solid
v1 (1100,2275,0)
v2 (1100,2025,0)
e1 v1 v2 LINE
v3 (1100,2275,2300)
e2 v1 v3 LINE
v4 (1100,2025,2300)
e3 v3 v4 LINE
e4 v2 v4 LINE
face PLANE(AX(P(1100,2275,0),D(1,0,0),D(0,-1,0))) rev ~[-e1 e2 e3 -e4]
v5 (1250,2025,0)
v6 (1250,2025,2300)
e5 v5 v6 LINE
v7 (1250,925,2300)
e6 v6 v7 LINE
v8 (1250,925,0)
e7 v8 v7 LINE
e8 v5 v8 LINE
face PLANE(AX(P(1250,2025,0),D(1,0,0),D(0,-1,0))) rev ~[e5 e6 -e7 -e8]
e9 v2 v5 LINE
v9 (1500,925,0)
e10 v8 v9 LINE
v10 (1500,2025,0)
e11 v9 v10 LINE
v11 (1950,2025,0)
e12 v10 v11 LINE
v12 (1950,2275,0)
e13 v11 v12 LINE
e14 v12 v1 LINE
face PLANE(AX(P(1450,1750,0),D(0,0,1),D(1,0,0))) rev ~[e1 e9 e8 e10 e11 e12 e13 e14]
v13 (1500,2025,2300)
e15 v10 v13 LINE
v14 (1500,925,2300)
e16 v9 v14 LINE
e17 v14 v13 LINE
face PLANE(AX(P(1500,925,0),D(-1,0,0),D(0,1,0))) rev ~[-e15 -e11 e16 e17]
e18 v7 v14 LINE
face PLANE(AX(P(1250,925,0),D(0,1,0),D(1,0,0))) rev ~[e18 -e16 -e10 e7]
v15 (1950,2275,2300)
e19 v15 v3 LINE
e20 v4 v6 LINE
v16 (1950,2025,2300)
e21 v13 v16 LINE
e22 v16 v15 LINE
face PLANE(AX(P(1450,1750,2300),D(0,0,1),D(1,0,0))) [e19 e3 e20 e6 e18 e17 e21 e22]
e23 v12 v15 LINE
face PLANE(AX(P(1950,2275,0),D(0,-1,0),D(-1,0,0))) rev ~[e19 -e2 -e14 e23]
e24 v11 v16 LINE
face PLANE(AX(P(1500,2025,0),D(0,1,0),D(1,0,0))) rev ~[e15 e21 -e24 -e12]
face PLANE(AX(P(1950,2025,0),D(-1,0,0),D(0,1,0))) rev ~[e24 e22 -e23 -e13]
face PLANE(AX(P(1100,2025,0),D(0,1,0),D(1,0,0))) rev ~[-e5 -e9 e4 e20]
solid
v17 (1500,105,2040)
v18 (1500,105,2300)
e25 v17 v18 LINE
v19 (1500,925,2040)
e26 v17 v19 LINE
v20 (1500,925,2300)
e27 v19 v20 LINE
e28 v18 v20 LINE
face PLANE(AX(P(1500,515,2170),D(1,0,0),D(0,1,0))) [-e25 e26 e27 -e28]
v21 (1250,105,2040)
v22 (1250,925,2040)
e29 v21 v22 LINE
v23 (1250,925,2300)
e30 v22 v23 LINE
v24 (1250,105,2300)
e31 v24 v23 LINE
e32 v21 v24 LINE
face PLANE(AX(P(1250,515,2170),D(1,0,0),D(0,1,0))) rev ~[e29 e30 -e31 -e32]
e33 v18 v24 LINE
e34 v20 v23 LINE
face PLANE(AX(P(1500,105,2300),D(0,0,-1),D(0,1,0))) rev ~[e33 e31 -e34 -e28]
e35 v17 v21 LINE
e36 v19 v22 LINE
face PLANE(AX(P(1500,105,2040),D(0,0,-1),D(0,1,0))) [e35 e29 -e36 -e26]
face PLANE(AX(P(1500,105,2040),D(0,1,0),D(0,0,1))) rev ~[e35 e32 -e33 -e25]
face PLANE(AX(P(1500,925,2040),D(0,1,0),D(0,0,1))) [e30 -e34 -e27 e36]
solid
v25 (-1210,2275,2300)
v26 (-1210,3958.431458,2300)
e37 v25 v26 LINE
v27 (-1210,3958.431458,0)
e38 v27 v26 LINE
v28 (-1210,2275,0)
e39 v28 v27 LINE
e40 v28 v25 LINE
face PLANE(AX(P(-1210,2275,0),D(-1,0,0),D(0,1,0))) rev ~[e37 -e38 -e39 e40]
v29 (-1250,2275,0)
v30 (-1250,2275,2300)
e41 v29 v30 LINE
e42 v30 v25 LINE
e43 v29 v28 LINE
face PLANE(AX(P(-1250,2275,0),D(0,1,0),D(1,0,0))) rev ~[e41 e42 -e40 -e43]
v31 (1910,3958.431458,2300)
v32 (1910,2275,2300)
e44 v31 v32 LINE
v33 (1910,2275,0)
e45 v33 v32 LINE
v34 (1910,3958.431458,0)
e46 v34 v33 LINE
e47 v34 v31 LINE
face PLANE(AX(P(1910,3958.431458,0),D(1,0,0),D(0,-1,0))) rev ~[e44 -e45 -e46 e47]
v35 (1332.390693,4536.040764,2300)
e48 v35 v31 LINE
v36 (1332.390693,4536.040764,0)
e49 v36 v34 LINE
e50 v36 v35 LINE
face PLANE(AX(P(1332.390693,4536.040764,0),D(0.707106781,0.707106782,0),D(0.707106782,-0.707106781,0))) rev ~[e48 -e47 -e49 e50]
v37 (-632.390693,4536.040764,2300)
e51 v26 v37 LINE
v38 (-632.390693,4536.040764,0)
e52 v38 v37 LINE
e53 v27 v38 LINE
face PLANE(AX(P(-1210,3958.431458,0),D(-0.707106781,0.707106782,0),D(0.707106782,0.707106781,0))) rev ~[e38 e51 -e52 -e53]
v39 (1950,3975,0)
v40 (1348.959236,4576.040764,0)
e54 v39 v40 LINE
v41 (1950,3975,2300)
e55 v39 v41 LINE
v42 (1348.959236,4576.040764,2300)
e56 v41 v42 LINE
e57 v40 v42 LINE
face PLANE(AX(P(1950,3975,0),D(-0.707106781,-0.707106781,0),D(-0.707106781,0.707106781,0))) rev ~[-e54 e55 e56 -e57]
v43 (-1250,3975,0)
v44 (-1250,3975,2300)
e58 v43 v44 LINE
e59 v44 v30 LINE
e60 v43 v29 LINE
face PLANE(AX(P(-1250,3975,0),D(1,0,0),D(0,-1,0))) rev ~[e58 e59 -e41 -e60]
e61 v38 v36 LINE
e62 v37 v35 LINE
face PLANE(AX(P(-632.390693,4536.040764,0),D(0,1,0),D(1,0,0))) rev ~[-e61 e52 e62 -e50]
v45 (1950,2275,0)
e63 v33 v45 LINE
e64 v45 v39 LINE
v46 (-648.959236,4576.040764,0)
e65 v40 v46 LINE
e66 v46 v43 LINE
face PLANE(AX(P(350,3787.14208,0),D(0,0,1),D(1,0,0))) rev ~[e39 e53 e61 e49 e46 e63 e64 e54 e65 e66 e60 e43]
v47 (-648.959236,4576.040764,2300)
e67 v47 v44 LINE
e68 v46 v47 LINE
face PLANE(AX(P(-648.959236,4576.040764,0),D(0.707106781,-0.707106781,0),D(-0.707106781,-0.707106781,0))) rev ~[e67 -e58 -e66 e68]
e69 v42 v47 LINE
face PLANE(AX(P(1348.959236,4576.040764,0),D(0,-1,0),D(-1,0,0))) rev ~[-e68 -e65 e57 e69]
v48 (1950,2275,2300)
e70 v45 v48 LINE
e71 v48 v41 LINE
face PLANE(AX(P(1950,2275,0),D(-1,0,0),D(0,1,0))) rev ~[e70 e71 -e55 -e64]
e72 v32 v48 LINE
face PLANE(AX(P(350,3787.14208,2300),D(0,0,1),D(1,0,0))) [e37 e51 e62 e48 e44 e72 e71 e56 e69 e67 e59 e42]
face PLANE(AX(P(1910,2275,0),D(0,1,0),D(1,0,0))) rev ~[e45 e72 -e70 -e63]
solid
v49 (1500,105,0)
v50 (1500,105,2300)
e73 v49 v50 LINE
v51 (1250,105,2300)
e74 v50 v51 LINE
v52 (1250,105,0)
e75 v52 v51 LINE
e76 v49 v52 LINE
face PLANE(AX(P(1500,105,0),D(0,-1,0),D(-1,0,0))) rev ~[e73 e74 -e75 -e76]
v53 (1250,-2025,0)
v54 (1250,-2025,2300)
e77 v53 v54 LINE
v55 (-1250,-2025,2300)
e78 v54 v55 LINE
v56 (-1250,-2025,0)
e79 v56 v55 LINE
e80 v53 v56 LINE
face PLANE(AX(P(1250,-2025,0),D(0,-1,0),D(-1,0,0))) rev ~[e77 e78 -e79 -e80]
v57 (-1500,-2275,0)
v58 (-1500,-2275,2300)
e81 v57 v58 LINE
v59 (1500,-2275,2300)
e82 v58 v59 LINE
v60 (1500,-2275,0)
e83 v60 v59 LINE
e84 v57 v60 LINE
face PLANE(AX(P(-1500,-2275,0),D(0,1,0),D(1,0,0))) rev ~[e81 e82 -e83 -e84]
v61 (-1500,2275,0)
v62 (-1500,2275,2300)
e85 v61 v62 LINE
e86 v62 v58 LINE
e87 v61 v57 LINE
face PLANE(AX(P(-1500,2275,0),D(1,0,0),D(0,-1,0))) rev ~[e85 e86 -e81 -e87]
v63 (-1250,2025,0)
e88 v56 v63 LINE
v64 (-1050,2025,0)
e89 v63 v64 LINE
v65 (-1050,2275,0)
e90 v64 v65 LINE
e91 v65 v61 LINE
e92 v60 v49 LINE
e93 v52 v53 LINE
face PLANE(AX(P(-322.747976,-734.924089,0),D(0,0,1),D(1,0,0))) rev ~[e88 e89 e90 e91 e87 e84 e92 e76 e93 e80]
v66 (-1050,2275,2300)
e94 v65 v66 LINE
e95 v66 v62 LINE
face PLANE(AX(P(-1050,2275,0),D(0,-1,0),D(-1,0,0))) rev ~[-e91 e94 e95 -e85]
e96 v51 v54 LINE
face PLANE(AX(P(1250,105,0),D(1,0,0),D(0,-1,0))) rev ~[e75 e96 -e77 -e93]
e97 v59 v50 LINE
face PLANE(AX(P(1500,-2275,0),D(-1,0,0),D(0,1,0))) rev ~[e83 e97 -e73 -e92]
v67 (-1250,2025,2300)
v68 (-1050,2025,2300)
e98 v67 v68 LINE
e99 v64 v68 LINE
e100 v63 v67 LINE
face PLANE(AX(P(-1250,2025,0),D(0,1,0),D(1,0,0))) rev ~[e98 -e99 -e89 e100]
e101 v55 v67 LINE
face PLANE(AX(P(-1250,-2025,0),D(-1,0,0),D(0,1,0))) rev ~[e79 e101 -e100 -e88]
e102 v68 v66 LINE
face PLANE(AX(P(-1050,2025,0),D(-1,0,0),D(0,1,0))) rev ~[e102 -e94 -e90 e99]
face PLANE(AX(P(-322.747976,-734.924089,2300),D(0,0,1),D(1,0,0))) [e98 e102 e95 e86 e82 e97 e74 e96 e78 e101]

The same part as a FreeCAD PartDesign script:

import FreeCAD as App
import Part
import Sketcher
from FreeCAD import Vector
Q = App.Units.Quantity

doc = App.newDocument("Part")
body = doc.addObject("PartDesign::Body", "Body")
body.AllowCompound = True

# Sketch on XY plane
sketch1 = doc.addObject("Sketcher::SketchObject", "Sketch")
body.addObject(sketch1)
sketch1.AttachmentSupport = (doc.XY_Plane, [""])
sketch1.MapMode = "FlatFace"
sketch1.addGeometry([
    Part.LineSegment(Vector(-1250, -2025, 0), Vector(-1250, 2025, 0)),  # 0
    Part.LineSegment(Vector(-1250, 2025, 0), Vector(-1050, 2025, 0)),  # 1
    Part.LineSegment(Vector(-1050, 2025, 0), Vector(-1050, 2275, 0)),  # 2
    Part.LineSegment(Vector(-1050, 2275, 0), Vector(-1500, 2275, 0)),  # 3
    Part.LineSegment(Vector(-1500, 2275, 0), Vector(-1500, -2275, 0)),  # 4
    Part.LineSegment(Vector(-1500, -2275, 0), Vector(1500, -2275, 0)),  # 5
    Part.LineSegment(Vector(1500, -2275, 0), Vector(1500, 105, 0)),  # 6
    Part.LineSegment(Vector(1500, 105, 0), Vector(1250, 105, 0)),  # 7
    Part.LineSegment(Vector(1250, 105, 0), Vector(1250, -2025, 0)),  # 8
    Part.LineSegment(Vector(1250, -2025, 0), Vector(-1250, -2025, 0)),  # 9
    Part.LineSegment(Vector(1100, 2275, 0), Vector(1100, 2025, 0)),  # 10
    Part.LineSegment(Vector(1100, 2025, 0), Vector(1250, 2025, 0)),  # 11
    Part.LineSegment(Vector(1250, 2025, 0), Vector(1250, 925, 0)),  # 12
    Part.LineSegment(Vector(1250, 925, 0), Vector(1500, 925, 0)),  # 13
    Part.LineSegment(Vector(1500, 925, 0), Vector(1500, 2025, 0)),  # 14
    Part.LineSegment(Vector(1500, 2025, 0), Vector(1950, 2025, 0)),  # 15
    Part.LineSegment(Vector(1950, 2025, 0), Vector(1950, 2275, 0)),  # 16
    Part.LineSegment(Vector(1950, 2275, 0), Vector(1100, 2275, 0)),  # 17
], False)
sketch1.addConstraint([
    Sketcher.Constraint("Coincident", 0, 2, 1, 1),
    Sketcher.Constraint("Coincident", 1, 2, 2, 1),
    Sketcher.Constraint("Coincident", 2, 2, 3, 1),
    Sketcher.Constraint("Coincident", 3, 2, 4, 1),
    Sketcher.Constraint("Coincident", 4, 2, 5, 1),
    Sketcher.Constraint("Coincident", 5, 2, 6, 1),
    Sketcher.Constraint("Coincident", 6, 2, 7, 1),
    Sketcher.Constraint("Coincident", 7, 2, 8, 1),
    Sketcher.Constraint("Coincident", 8, 2, 9, 1),
    Sketcher.Constraint("Coincident", 9, 2, 0, 1),
    Sketcher.Constraint("Coincident", 10, 2, 11, 1),
    Sketcher.Constraint("Coincident", 11, 2, 12, 1),
    Sketcher.Constraint("Coincident", 12, 2, 13, 1),
    Sketcher.Constraint("Coincident", 13, 2, 14, 1),
    Sketcher.Constraint("Coincident", 14, 2, 15, 1),
    Sketcher.Constraint("Coincident", 15, 2, 16, 1),
    Sketcher.Constraint("Coincident", 16, 2, 17, 1),
    Sketcher.Constraint("Coincident", 17, 2, 10, 1),
    Sketcher.Constraint("Vertical", 0),
    Sketcher.Constraint("Horizontal", 1),
    Sketcher.Constraint("Vertical", 2),
    Sketcher.Constraint("Horizontal", 3),
    Sketcher.Constraint("Vertical", 4),
    Sketcher.Constraint("Horizontal", 5),
    Sketcher.Constraint("Vertical", 6),
    Sketcher.Constraint("Horizontal", 7),
    Sketcher.Constraint("Vertical", 8),
    Sketcher.Constraint("Horizontal", 9),
    Sketcher.Constraint("Vertical", 10),
    Sketcher.Constraint("Horizontal", 11),
    Sketcher.Constraint("Vertical", 12),
    Sketcher.Constraint("Horizontal", 13),
    Sketcher.Constraint("Vertical", 14),
    Sketcher.Constraint("Horizontal", 15),
    Sketcher.Constraint("Vertical", 16),
    Sketcher.Constraint("Horizontal", 17),
    Sketcher.Constraint("Symmetric", 3, 2, 5, 2, -1, 1),
    Sketcher.Constraint("Symmetric", 0, 2, 8, 2, -1, 1),
    Sketcher.Constraint("Symmetric", 9, 2, 11, 2, -1, 1),
    Sketcher.Constraint("Horizontal", 11, 2, 14, 2),
    Sketcher.Constraint("Horizontal", 3, 2, 16, 2),
    Sketcher.Constraint("Vertical", 6, 2, 13, 2),
    Sketcher.Constraint("Equal", 3, 15),
    Sketcher.Constraint("Equal", 13, 2),
    Sketcher.Constraint("DistanceX", 1, 1, 1, 2, Q("200 mm")),
    Sketcher.Constraint("DistanceX", 3, 2, 3, 1, Q("450 mm")),
    Sketcher.Constraint("DistanceX", 5, 1, 5, 2, Q("3000 mm")),
    Sketcher.Constraint("DistanceX", 11, 1, 11, 2, Q("150 mm")),
    Sketcher.Constraint("DistanceY", 0, 1, 0, 2, Q("4050 mm")),
    Sketcher.Constraint("DistanceY", 6, 1, 6, 2, Q("2380 mm")),
    Sketcher.Constraint("DistanceY", 12, 2, 12, 1, Q("1100 mm")),
])
pad1 = doc.addObject("PartDesign::Pad", "Pad")
body.addObject(pad1)
pad1.Profile = sketch1
pad1.Length = 2300
body2 = doc.addObject("PartDesign::Body", "Body001")

# Sketch on YZ plane
sketch2 = doc.addObject("Sketcher::SketchObject", "Sketch001")
body2.addObject(sketch2)
sketch2.AttachmentSupport = (doc.getObject("YZ_Plane001"), [""])
sketch2.MapMode = "FlatFace"
sketch2.AttachmentOffset = App.Placement(Vector(0, 0, 1500), App.Rotation())
sketch2.addGeometry([
    Part.LineSegment(Vector(105, 2300, 0), Vector(105, 2040, 0)),
    Part.LineSegment(Vector(105, 2040, 0), Vector(925, 2040, 0)),
    Part.LineSegment(Vector(925, 2040, 0), Vector(925, 2300, 0)),
    Part.LineSegment(Vector(925, 2300, 0), Vector(105, 2300, 0)),
], False)
sketch2.addConstraint([
    Sketcher.Constraint("Coincident", 0, 2, 1, 1),
    Sketcher.Constraint("Coincident", 1, 2, 2, 1),
    Sketcher.Constraint("Coincident", 2, 2, 3, 1),
    Sketcher.Constraint("Coincident", 3, 2, 0, 1),
    Sketcher.Constraint("Vertical", 0),
    Sketcher.Constraint("Horizontal", 1),
    Sketcher.Constraint("Vertical", 2),
    Sketcher.Constraint("Horizontal", 3),
    Sketcher.Constraint("DistanceX", 1, 1, 1, 2, Q("820 mm")),
    Sketcher.Constraint("DistanceY", 0, 2, 0, 1, Q("260 mm")),
    Sketcher.Constraint("DistanceX", -1, 1, 0, 2, Q("105 mm")),
    Sketcher.Constraint("DistanceY", -1, 1, 0, 2, Q("2040 mm")),
])
pad2 = doc.addObject("PartDesign::Pad", "Pad001")
body2.addObject(pad2)
pad2.Profile = sketch2
pad2.Length = 250
pad2.Reversed = True
body3 = doc.addObject("PartDesign::Body", "Body002")

# Sketch on XY plane
sketch3 = doc.addObject("Sketcher::SketchObject", "Sketch002")
body3.addObject(sketch3)
sketch3.AttachmentSupport = (doc.getObject("XY_Plane002"), [""])
sketch3.MapMode = "FlatFace"
sketch3.addGeometry([
    Part.LineSegment(Vector(-1250, 2275, 0), Vector(-1210, 2275, 0)),  # 0
    Part.LineSegment(Vector(-1210, 2275, 0), Vector(-1210, 3958, 0)),  # 1
    Part.LineSegment(Vector(-1210, 3958, 0), Vector(-632, 4536, 0)),  # 2
    Part.LineSegment(Vector(-632, 4536, 0), Vector(1332, 4536, 0)),  # 3
    Part.LineSegment(Vector(1332, 4536, 0), Vector(1910, 3958, 0)),  # 4
    Part.LineSegment(Vector(1910, 3958, 0), Vector(1910, 2275, 0)),  # 5
    Part.LineSegment(Vector(1910, 2275, 0), Vector(1950, 2275, 0)),  # 6
    Part.LineSegment(Vector(1950, 2275, 0), Vector(1950, 3975, 0)),  # 7
    Part.LineSegment(Vector(1950, 3975, 0), Vector(1349, 4576, 0)),  # 8
    Part.LineSegment(Vector(1349, 4576, 0), Vector(-649, 4576, 0)),  # 9
    Part.LineSegment(Vector(-649, 4576, 0), Vector(-1250, 3975, 0)),  # 10
    Part.LineSegment(Vector(-1250, 3975, 0), Vector(-1250, 2275, 0)),  # 11
], False)
sketch3.addConstraint([
    Sketcher.Constraint("Coincident", 0, 2, 1, 1),
    Sketcher.Constraint("Coincident", 1, 2, 2, 1),
    Sketcher.Constraint("Coincident", 2, 2, 3, 1),
    Sketcher.Constraint("Coincident", 3, 2, 4, 1),
    Sketcher.Constraint("Coincident", 4, 2, 5, 1),
    Sketcher.Constraint("Coincident", 5, 2, 6, 1),
    Sketcher.Constraint("Coincident", 6, 2, 7, 1),
    Sketcher.Constraint("Coincident", 7, 2, 8, 1),
    Sketcher.Constraint("Coincident", 8, 2, 9, 1),
    Sketcher.Constraint("Coincident", 9, 2, 10, 1),
    Sketcher.Constraint("Coincident", 10, 2, 11, 1),
    Sketcher.Constraint("Coincident", 11, 2, 0, 1),
    Sketcher.Constraint("Horizontal", 0),
    Sketcher.Constraint("Vertical", 1),
    Sketcher.Constraint("Horizontal", 3),
    Sketcher.Constraint("Vertical", 5),
    Sketcher.Constraint("Horizontal", 6),
    Sketcher.Constraint("Vertical", 7),
    Sketcher.Constraint("Horizontal", 9),
    Sketcher.Constraint("Vertical", 11),
    Sketcher.Constraint("Perpendicular", 2, 4),
    Sketcher.Constraint("Parallel", 4, 8),
    Sketcher.Constraint("Perpendicular", 8, 10),
    Sketcher.Constraint("Horizontal", 1, 2, 4, 2),
    Sketcher.Constraint("Horizontal", 0, 2, 5, 2),
    Sketcher.Constraint("Horizontal", 7, 2, 10, 2),
    Sketcher.Constraint("Equal", 0, 6),
    Sketcher.Constraint("Equal", 2, 4),
    Sketcher.Constraint("DistanceX", 0, 1, 0, 2, Q("40 mm")),
    Sketcher.Constraint("DistanceY", 7, 1, 7, 2, Q("1700 mm")),
    Sketcher.Constraint("Distance", 8, Q("850 mm")),
    Sketcher.Constraint("DistanceX", 0, 2, -1, 1, Q("1210 mm")),
    Sketcher.Constraint("DistanceY", -1, 1, 0, 2, Q("2275 mm")),
    Sketcher.Constraint("DistanceX", -1, 1, 4, 2, Q("1910 mm")),
    Sketcher.Constraint("DistanceY", 3, 2, 8, 2, Q("40 mm")),
    Sketcher.Constraint("DistanceY", 1, 1, 1, 2, Q("1683.431458 mm")),
])
pad3 = doc.addObject("PartDesign::Pad", "Pad002")
body3.addObject(pad3)
pad3.Profile = sketch3
pad3.Length = 2300

doc.recompute()
